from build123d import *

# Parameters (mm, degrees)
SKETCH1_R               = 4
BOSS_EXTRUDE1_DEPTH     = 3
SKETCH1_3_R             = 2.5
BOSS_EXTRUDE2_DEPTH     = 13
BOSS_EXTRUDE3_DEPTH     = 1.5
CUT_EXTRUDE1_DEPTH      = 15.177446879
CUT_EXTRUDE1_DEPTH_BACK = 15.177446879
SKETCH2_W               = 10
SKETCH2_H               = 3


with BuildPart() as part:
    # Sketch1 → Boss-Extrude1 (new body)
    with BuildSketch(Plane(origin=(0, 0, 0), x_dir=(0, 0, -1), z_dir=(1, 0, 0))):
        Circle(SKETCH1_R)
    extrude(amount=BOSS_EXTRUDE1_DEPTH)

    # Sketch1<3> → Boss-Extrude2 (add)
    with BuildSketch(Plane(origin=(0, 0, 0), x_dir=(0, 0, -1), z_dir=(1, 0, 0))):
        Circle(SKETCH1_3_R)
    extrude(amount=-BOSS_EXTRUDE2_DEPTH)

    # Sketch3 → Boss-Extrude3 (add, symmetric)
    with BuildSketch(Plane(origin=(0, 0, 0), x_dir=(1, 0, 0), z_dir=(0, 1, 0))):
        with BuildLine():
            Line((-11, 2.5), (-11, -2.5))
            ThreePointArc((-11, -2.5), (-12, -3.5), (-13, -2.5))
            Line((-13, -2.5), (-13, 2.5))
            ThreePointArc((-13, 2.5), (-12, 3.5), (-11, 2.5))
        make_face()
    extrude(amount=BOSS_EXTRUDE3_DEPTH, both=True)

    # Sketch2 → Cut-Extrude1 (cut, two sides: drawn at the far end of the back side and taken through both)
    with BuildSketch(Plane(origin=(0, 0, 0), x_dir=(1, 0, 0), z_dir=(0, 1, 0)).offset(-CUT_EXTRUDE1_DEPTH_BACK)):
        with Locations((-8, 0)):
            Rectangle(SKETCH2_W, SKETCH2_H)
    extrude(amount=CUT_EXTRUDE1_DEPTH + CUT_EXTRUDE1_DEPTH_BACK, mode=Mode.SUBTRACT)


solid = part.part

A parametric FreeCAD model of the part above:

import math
import FreeCAD as App
import Part
import Sketcher


def add_polygon(sketch, points):
    """Adds a closed chain of lines whose ends are joined by coincident constraints."""
    first, n = sketch.GeometryCount, len(points)
    for a, b in zip(points, points[1:] + points[:1]):
        sketch.addGeometry(Part.LineSegment(App.Vector(*a, 0), App.Vector(*b, 0)), False)
    for i in range(n):
        sketch.addConstraint(Sketcher.Constraint("Coincident", first + i, 2, first + (i + 1) % n, 1))

doc = App.newDocument("Part")
params = doc.addObject("Spreadsheet::Sheet", "Params")
for row, (alias, value) in enumerate([
    ("sketch1_diameter", "8 mm"),
    ("pad1_length", "3 mm"),
    ("sketch2_diameter", "5 mm"),
    ("pad2_length", "13 mm"),
    ("sketch3_radius", "1 mm"),
    ("sketch3_height", "5 mm"),
    ("pad3_length", "3 mm"),
    ("sketch4_width", "10 mm"),
    ("sketch4_height", "3 mm"),
], start=1):
    params.set(f"A{row}", alias)
    params.set(f"B{row}", "=" + value)
    params.setAlias(f"B{row}", alias)

body = doc.addObject("PartDesign::Body", "Body")

sketch1 = doc.addObject("Sketcher::SketchObject", "Sketch")
body.addObject(sketch1)
sketch1.AttachmentSupport = (doc.YZ_Plane, [""])
sketch1.MapMode = "FlatFace"
sketch1.addGeometry(Part.Circle(App.Vector(0, 0, 0), App.Vector(0, 0, 1), 4), False)
sketch1.addConstraint(Sketcher.Constraint("Coincident", 0, 3, -1, 1))
sketch1.addConstraint(Sketcher.Constraint("Diameter", 0, 8.0))
sketch1.setExpression("Constraints[1]", "Params.sketch1_diameter")
pad1 = doc.addObject("PartDesign::Pad", "Pad")
body.addObject(pad1)
pad1.Profile = sketch1
pad1.setExpression("Length", "Params.pad1_length")

sketch2 = doc.addObject("Sketcher::SketchObject", "Sketch001")
body.addObject(sketch2)
sketch2.AttachmentSupport = (doc.YZ_Plane, [""])
sketch2.MapMode = "FlatFace"
sketch2.addGeometry(Part.Circle(App.Vector(0, 0, 0), App.Vector(0, 0, 1), 2.5), False)
sketch2.addConstraint(Sketcher.Constraint("Coincident", 0, 3, -1, 1))
sketch2.addConstraint(Sketcher.Constraint("Diameter", 0, 5.0))
sketch2.setExpression("Constraints[1]", "Params.sketch2_diameter")
pad2 = doc.addObject("PartDesign::Pad", "Pad001")
body.addObject(pad2)
pad2.Profile = sketch2
pad2.setExpression("Length", "Params.pad2_length")
pad2.Reversed = True

sketch3 = doc.addObject("Sketcher::SketchObject", "Sketch002")
body.addObject(sketch3)
sketch3.AttachmentSupport = (doc.XZ_Plane, [""])
sketch3.MapMode = "FlatFace"
sketch3.addGeometry(Part.LineSegment(App.Vector(-11, 2.5, 0), App.Vector(-11, -2.5, 0)), False)
sketch3.addGeometry(Part.ArcOfCircle(Part.Circle(App.Vector(-12, -2.5, 0), App.Vector(0, 0, 1), 1), math.radians(180), math.radians(360)), False)
sketch3.addGeometry(Part.LineSegment(App.Vector(-13, -2.5, 0), App.Vector(-13, 2.5, 0)), False)
sketch3.addGeometry(Part.ArcOfCircle(Part.Circle(App.Vector(-12, 2.5, 0), App.Vector(0, 0, 1), 1), math.radians(0), math.radians(180)), False)
sketch3.addConstraint(Sketcher.Constraint("Tangent", 0, 2, 1, 2))
sketch3.addConstraint(Sketcher.Constraint("Tangent", 1, 1, 2, 1))
sketch3.addConstraint(Sketcher.Constraint("Tangent", 2, 2, 3, 2))
sketch3.addConstraint(Sketcher.Constraint("Tangent", 3, 1, 0, 1))
sketch3.addConstraint(Sketcher.Constraint("Vertical", 0))
sketch3.addConstraint(Sketcher.Constraint("Vertical", 2))
sketch3.addConstraint(Sketcher.Constraint("Radius", 1, 1.0))
sketch3.addConstraint(Sketcher.Constraint("DistanceY", 0, 2, 0, 1, 5.0))
sketch3.addConstraint(Sketcher.Constraint("DistanceX", 1, 3, -1, 1, 12.0))
sketch3.addConstraint(Sketcher.Constraint("DistanceY", 1, 3, -1, 1, 2.5))
sketch3.setExpression("Constraints[6]", "Params.sketch3_radius")
sketch3.setExpression("Constraints[7]", "Params.sketch3_height")
pad3 = doc.addObject("PartDesign::Pad", "Pad002")
body.addObject(pad3)
pad3.Profile = sketch3
pad3.setExpression("Length", "Params.pad3_length")
pad3.Midplane = True

sketch4 = doc.addObject("Sketcher::SketchObject", "Sketch003")
body.addObject(sketch4)
sketch4.AttachmentSupport = (doc.XZ_Plane, [""])
sketch4.MapMode = "FlatFace"
add_polygon(sketch4, [(-13, -1.5), (-13, 1.5), (-3, 1.5), (-3, -1.5)])
sketch4.addConstraint(Sketcher.Constraint("Vertical", 0))
sketch4.addConstraint(Sketcher.Constraint("Horizontal", 1))
sketch4.addConstraint(Sketcher.Constraint("Vertical", 2))
sketch4.addConstraint(Sketcher.Constraint("Horizontal", 3))
sketch4.addConstraint(Sketcher.Constraint("DistanceX", 1, 1, 1, 2, 10.0))
sketch4.addConstraint(Sketcher.Constraint("DistanceY", 0, 1, 0, 2, 3.0))
sketch4.addConstraint(Sketcher.Constraint("DistanceX", 0, 2, -1, 1, 13.0))
sketch4.addConstraint(Sketcher.Constraint("DistanceY", -1, 1, 0, 2, 1.5))
sketch4.setExpression("Constraints[8]", "Params.sketch4_width")
sketch4.setExpression("Constraints[9]", "Params.sketch4_height")
pocket1 = doc.addObject("PartDesign::Pocket", "Pocket")
body.addObject(pocket1)
pocket1.Profile = sketch4
pocket1.Type = "ThroughAll"
pocket1.Midplane = True

doc.recompute()
